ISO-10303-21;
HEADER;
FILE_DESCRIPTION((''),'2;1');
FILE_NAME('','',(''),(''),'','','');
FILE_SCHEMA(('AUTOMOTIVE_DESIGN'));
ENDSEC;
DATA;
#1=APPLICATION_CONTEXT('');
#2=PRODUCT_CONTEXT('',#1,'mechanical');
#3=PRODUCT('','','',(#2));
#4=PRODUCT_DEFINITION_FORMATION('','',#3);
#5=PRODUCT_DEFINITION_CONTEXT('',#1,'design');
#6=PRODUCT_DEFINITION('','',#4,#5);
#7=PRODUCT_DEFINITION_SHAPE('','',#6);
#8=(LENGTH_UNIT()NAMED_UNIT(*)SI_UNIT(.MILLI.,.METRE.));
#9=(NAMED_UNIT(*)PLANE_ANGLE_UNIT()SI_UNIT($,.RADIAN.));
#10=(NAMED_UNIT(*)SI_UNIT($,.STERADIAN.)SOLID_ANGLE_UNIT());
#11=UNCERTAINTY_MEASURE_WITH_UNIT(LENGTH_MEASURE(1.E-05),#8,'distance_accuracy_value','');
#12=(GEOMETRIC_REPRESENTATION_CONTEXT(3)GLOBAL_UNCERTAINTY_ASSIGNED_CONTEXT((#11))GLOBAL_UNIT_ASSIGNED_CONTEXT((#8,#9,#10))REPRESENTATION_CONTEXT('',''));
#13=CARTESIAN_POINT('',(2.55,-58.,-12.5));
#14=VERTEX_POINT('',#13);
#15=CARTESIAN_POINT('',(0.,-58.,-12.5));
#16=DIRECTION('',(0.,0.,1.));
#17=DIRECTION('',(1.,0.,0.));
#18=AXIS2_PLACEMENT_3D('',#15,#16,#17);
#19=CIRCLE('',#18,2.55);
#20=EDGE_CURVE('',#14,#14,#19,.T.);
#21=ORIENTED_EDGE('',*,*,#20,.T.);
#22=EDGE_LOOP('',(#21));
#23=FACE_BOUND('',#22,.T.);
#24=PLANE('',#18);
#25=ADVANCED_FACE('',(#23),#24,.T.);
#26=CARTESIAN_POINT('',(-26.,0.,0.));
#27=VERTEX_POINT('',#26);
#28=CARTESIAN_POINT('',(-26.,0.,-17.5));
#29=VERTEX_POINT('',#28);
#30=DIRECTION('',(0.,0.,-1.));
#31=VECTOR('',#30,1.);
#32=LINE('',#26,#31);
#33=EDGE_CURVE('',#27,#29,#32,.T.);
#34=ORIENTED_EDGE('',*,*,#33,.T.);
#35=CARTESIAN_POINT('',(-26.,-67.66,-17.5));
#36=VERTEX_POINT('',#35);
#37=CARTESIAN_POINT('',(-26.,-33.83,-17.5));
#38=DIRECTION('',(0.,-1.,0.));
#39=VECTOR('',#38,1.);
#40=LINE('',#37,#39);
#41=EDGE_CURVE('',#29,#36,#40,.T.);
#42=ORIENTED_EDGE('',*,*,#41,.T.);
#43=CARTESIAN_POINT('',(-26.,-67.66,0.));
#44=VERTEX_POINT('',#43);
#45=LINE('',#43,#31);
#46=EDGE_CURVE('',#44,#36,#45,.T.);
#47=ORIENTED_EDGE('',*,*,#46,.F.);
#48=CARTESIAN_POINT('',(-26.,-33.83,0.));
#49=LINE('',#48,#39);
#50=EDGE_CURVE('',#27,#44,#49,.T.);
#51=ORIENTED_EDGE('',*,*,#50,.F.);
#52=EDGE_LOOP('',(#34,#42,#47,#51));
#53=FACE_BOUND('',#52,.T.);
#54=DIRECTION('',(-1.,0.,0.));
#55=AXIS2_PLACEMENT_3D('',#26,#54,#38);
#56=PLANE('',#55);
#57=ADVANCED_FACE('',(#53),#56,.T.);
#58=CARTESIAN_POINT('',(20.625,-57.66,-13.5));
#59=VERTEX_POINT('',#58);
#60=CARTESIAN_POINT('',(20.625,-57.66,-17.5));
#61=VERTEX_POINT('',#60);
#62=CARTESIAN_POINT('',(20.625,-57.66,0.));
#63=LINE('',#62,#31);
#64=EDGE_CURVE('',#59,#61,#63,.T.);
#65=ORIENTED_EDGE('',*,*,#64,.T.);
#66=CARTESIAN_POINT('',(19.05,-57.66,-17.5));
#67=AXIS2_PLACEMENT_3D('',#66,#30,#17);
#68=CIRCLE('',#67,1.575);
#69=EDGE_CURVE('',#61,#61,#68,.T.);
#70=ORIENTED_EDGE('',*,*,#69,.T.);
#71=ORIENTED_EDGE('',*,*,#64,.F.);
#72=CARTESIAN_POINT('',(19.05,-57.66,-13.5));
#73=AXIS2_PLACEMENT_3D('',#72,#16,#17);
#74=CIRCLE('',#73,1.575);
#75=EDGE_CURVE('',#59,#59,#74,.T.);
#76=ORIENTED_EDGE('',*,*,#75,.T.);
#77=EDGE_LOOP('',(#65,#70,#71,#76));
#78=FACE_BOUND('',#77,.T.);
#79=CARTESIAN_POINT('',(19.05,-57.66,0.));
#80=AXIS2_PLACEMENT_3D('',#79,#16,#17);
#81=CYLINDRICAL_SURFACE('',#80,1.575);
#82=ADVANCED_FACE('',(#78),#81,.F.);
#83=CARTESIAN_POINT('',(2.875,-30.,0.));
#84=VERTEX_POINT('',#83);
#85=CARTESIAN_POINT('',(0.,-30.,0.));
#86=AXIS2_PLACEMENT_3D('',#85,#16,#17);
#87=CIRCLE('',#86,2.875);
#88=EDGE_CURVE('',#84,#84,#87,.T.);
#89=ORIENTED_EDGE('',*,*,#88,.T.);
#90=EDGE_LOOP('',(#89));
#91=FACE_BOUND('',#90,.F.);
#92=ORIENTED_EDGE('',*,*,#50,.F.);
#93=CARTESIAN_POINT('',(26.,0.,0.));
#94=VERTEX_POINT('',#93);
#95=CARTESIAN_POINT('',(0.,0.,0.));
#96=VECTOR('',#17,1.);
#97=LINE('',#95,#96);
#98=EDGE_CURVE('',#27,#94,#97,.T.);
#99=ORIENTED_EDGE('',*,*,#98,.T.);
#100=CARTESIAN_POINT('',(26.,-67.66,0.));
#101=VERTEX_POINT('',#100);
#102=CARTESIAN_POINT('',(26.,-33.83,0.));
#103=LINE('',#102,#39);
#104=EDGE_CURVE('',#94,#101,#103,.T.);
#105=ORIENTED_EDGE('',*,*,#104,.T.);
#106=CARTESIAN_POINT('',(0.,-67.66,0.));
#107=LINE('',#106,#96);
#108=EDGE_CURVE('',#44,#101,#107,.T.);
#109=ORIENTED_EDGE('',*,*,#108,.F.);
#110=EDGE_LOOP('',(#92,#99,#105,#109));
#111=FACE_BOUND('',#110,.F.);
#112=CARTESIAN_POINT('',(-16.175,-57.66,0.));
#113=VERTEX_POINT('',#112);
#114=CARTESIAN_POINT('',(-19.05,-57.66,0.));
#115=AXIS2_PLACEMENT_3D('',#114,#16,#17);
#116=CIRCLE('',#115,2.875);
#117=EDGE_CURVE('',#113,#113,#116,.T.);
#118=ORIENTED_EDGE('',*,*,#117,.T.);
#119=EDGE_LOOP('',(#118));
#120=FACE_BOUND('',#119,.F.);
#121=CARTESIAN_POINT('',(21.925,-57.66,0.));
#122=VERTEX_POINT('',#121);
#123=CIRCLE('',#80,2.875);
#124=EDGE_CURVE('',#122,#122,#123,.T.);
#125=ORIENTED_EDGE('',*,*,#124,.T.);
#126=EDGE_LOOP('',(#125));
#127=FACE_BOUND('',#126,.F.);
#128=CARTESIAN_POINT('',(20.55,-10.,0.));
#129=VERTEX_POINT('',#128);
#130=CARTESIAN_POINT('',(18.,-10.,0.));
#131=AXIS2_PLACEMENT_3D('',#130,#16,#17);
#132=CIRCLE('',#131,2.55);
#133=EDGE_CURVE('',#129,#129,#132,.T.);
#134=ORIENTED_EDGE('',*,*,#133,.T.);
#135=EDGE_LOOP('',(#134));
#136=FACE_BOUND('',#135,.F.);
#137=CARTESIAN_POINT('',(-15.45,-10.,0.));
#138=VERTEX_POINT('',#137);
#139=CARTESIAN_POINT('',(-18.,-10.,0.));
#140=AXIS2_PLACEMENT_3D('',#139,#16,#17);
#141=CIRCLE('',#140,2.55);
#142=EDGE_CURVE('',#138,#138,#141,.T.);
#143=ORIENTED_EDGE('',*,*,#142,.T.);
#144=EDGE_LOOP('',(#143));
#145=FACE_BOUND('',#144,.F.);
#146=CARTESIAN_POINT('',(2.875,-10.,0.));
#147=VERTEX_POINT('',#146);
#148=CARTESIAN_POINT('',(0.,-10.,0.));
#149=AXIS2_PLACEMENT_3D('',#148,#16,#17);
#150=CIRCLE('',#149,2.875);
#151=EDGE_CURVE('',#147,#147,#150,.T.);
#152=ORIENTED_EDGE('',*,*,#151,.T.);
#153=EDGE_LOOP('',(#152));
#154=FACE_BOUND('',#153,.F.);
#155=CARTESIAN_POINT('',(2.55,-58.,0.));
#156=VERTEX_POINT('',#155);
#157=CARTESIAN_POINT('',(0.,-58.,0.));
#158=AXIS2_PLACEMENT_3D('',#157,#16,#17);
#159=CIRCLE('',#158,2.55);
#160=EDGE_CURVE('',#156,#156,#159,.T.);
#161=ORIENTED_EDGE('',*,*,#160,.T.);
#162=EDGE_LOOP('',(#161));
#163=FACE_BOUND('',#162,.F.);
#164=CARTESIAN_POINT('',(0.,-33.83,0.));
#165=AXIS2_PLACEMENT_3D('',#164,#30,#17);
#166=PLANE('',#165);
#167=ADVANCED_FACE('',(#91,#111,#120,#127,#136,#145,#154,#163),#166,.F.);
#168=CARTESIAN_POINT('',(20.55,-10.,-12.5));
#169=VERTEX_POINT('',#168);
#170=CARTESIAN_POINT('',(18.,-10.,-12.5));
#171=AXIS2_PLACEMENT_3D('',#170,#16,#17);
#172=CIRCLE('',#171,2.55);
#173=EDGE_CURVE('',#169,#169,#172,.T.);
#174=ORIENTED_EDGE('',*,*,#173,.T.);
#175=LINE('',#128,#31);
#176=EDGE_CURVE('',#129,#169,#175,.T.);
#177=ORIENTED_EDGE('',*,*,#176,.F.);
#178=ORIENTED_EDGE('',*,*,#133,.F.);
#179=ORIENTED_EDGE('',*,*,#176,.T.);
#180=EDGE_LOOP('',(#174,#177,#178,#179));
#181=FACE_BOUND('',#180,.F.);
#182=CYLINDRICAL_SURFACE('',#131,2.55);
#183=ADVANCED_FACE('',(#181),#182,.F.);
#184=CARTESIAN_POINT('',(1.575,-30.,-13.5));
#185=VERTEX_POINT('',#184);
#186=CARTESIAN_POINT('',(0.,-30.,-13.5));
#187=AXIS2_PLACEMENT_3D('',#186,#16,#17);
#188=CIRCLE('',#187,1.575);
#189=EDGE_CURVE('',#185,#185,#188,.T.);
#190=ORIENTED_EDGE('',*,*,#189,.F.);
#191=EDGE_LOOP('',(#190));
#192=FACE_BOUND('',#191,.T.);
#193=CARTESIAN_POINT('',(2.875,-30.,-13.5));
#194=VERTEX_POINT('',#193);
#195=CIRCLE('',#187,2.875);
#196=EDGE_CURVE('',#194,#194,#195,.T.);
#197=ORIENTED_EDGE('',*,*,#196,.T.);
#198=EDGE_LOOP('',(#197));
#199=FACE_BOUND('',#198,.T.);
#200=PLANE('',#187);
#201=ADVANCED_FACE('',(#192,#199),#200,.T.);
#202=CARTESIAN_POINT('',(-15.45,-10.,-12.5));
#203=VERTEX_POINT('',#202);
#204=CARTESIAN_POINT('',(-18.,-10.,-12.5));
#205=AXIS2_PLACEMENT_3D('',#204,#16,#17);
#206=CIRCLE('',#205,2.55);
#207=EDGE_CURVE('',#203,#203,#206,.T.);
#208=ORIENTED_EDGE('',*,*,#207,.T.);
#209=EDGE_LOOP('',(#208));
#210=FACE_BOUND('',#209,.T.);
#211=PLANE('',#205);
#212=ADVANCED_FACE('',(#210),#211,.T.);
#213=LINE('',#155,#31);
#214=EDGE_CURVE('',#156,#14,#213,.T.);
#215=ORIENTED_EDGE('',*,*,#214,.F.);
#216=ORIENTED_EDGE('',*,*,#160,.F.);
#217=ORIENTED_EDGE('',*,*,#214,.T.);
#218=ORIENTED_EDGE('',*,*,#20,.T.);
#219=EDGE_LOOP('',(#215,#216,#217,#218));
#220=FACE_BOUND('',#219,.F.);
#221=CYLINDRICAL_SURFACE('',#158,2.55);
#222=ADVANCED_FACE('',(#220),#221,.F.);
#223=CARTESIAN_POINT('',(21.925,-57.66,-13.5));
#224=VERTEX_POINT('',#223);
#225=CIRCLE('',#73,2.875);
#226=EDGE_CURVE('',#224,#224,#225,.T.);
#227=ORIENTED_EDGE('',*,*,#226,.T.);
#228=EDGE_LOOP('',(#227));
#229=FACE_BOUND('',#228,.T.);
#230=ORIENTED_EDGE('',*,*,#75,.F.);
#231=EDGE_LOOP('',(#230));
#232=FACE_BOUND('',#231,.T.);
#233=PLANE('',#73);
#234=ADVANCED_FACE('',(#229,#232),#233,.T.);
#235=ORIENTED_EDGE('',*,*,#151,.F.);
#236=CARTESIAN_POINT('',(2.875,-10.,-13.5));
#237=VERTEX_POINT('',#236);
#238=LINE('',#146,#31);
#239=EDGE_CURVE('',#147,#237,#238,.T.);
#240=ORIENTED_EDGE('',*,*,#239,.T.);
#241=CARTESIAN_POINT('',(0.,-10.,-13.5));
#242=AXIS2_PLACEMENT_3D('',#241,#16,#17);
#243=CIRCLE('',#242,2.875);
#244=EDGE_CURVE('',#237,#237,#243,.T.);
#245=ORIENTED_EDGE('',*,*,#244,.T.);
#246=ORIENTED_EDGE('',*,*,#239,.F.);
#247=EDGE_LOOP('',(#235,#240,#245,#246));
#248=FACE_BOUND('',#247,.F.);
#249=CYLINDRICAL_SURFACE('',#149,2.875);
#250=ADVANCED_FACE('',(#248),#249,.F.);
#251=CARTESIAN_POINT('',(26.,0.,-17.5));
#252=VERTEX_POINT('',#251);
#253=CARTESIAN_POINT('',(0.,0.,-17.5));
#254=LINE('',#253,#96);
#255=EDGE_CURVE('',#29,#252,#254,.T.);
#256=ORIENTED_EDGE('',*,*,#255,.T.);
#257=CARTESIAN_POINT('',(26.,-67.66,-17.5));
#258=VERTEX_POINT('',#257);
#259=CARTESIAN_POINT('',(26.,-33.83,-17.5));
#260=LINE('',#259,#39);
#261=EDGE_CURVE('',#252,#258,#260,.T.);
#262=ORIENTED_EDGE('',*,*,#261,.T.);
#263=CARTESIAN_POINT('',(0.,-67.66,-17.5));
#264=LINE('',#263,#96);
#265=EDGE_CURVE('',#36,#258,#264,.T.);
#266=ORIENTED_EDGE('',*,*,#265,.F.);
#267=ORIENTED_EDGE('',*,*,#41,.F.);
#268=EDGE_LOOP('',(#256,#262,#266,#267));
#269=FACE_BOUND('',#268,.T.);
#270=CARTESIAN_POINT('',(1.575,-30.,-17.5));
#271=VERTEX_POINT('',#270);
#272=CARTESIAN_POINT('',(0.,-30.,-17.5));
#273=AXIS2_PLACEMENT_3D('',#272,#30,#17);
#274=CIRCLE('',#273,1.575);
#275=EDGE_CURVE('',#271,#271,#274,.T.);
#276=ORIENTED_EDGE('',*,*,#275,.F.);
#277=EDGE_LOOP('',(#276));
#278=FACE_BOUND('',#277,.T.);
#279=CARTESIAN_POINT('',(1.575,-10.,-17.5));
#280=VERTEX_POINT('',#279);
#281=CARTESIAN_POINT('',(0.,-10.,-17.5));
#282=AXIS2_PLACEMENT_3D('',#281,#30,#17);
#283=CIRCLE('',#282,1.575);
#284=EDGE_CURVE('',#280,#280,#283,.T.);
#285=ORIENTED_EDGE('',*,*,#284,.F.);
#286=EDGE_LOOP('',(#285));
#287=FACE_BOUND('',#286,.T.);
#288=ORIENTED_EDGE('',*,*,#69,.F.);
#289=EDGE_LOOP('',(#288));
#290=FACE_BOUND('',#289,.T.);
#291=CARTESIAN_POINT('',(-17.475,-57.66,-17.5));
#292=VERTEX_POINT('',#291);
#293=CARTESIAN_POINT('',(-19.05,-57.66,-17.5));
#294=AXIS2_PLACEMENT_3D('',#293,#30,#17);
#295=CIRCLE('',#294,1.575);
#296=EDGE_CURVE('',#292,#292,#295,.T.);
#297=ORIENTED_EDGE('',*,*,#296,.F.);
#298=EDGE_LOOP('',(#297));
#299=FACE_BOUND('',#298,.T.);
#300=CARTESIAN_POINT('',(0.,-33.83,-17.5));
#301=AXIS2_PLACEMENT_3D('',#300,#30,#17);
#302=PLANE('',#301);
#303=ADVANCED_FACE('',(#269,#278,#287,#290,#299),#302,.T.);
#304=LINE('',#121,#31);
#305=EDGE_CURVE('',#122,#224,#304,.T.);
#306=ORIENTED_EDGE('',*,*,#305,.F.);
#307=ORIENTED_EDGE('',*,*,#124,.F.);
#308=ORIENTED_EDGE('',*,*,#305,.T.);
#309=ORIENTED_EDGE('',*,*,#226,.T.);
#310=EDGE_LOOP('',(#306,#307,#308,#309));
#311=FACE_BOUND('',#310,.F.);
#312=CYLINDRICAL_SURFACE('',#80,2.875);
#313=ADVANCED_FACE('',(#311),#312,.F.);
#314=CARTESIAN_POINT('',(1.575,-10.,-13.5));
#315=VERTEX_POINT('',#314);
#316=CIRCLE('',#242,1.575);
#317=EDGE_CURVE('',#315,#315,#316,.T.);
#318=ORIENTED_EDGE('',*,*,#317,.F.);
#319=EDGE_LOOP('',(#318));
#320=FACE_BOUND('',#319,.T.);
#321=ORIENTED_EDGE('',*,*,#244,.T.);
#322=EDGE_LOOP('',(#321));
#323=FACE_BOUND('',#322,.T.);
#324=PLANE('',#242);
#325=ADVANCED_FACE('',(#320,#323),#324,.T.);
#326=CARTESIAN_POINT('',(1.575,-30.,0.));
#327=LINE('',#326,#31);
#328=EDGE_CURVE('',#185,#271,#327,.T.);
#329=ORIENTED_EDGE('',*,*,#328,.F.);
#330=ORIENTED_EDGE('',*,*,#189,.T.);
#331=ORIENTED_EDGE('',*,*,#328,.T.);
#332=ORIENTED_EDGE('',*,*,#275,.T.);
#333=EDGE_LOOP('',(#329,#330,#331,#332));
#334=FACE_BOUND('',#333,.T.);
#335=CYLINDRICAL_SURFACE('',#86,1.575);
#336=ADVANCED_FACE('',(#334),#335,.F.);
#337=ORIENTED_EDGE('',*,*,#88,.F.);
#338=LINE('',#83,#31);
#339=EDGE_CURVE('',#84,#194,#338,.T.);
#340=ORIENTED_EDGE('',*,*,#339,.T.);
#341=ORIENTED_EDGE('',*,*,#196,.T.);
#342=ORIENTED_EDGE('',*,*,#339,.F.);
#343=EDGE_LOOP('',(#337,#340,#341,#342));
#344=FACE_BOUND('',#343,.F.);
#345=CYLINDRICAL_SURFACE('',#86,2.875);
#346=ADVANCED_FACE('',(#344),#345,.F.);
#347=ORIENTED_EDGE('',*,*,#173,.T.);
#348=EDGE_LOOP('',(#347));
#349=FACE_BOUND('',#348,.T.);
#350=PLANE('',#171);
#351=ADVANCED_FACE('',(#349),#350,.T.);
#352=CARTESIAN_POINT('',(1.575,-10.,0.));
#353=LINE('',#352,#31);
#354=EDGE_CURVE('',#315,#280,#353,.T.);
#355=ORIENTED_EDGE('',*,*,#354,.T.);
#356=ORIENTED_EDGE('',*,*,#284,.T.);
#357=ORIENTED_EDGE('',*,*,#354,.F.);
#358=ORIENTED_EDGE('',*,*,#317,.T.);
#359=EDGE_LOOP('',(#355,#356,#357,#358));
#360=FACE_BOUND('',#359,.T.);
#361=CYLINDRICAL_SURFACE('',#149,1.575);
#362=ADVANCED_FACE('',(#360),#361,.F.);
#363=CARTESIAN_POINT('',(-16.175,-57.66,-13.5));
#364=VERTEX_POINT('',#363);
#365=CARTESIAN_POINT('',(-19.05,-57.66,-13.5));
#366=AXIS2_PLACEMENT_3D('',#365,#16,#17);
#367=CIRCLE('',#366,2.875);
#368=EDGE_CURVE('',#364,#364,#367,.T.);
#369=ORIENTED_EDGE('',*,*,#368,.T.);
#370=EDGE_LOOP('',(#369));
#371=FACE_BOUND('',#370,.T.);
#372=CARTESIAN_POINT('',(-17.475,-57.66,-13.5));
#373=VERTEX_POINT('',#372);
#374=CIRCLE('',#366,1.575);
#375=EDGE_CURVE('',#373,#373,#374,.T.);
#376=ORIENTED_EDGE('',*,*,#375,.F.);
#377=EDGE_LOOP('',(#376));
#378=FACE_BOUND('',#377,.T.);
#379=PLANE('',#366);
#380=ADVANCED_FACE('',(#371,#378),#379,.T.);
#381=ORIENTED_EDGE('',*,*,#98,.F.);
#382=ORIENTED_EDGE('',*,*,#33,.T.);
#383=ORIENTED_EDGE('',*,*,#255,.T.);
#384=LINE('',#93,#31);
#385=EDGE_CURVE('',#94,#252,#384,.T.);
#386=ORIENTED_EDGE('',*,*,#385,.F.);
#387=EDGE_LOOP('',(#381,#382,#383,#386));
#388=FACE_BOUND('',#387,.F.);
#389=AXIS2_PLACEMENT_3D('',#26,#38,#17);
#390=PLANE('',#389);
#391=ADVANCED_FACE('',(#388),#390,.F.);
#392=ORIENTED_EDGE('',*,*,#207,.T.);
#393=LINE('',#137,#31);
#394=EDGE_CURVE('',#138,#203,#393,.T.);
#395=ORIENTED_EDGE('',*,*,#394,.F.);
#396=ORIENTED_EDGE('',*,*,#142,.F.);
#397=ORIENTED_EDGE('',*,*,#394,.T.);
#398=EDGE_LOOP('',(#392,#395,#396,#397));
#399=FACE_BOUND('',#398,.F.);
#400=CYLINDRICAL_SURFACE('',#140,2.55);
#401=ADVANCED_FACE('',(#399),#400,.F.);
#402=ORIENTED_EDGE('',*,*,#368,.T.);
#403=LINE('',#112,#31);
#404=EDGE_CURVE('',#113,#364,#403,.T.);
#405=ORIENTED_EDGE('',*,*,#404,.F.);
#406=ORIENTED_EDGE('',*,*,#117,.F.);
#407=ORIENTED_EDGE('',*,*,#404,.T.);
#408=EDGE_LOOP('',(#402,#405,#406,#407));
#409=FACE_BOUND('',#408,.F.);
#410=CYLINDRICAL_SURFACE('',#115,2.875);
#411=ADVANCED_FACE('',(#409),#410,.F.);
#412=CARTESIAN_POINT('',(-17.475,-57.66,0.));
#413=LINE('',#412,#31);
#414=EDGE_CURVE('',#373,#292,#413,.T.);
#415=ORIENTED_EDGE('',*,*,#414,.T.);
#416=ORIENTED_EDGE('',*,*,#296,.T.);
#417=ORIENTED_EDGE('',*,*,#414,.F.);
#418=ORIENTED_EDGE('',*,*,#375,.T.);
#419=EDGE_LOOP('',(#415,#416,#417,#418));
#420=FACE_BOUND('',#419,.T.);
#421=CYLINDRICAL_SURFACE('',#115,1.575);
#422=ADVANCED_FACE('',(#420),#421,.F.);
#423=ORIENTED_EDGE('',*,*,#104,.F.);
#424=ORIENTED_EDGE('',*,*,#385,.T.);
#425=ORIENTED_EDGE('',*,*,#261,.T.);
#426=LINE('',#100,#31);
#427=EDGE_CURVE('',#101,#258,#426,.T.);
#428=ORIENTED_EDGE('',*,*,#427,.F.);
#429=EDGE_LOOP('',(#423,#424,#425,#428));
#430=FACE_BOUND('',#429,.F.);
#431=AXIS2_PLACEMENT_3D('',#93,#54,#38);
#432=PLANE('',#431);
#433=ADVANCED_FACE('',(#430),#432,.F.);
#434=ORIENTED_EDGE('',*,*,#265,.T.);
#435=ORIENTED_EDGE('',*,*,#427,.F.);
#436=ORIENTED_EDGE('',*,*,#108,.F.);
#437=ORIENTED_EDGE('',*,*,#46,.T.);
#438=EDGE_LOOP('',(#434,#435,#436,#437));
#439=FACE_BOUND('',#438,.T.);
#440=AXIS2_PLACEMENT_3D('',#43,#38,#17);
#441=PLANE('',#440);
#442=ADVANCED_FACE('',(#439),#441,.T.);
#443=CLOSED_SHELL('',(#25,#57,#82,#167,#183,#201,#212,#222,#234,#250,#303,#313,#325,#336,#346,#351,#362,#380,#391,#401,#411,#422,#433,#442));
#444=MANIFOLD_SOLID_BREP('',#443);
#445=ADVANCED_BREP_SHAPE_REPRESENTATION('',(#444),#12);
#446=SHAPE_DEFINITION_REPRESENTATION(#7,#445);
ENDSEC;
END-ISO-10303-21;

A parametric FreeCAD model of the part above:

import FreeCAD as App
import Part
import Sketcher

V = App.Vector
Q = App.Units.Quantity

doc = App.newDocument("Part")
body = doc.addObject("PartDesign::Body", "Body")

# Sketch on XY plane
sketch1 = body.newObject("Sketcher::SketchObject", "Sketch")
sketch1.AttachmentSupport = (doc.getObject("XY_Plane"), [""])
sketch1.MapMode = "FlatFace"
sketch1.addGeometry([
    Part.LineSegment(V(-26, 38, 0), V(-26, -30, 0)),
    Part.LineSegment(V(-26, -30, 0), V(26, -30, 0)),
    Part.LineSegment(V(26, -30, 0), V(26, 38, 0)),
    Part.LineSegment(V(26, 38, 0), V(-26, 38, 0)),
], False)
sketch1.addConstraint([
    Sketcher.Constraint("Coincident", 0, 2, 1, 1),
    Sketcher.Constraint("Coincident", 1, 2, 2, 1),
    Sketcher.Constraint("Coincident", 2, 2, 3, 1),
    Sketcher.Constraint("Coincident", 3, 2, 0, 1),
    Sketcher.Constraint("Vertical", 0),
    Sketcher.Constraint("Horizontal", 1),
    Sketcher.Constraint("Vertical", 2),
    Sketcher.Constraint("Horizontal", 3),
    Sketcher.Constraint("DistanceX", 1, 1, 1, 2, Q("52 mm")),
    Sketcher.Constraint("DistanceX", 0, 2, -1, 1, Q("26 mm")),
    Sketcher.Constraint("DistanceY", 0, 2, -1, 1, Q("30 mm")),
    Sketcher.Constraint("DistanceY", 0, 2, 0, 1, Q("67.66 mm")),
])
pad1 = body.newObject("PartDesign::Pad", "Pad")
pad1.Profile = sketch1
pad1.Length = 17.5

# Sketch on XY plane
sketch2 = body.newObject("Sketcher::SketchObject", "Sketch001")
sketch2.AttachmentSupport = (doc.getObject("XY_Plane"), [""])
sketch2.MapMode = "FlatFace"
sketch2.addGeometry([
    Part.Circle(V(0, 0, 0), V(0, 0, 1), 1.6),
    Part.Circle(V(0, -20, 0), V(0, 0, 1), 1.6),
    Part.Circle(V(-19.1, 27.7, 0), V(0, 0, 1), 1.6),
    Part.Circle(V(19.1, 27.7, 0), V(0, 0, 1), 1.6),
], False)
sketch2.addConstraint([
    Sketcher.Constraint("Coincident", 0, 3, -1, 1),
    Sketcher.Constraint("Equal", 0, 1),
    Sketcher.Constraint("Equal", 1, 2),
    Sketcher.Constraint("Equal", 2, 3),
    Sketcher.Constraint("Symmetric", 2, 3, 3, 3, -2),
    Sketcher.Constraint("PointOnObject", 1, 3, -2),
    Sketcher.Constraint("Diameter", 0, Q("3.15 mm")),
    Sketcher.Constraint("DistanceY", 1, 3, -1, 1, Q("20 mm")),
    Sketcher.Constraint("DistanceX", 2, 3, 3, 3, Q("38.1 mm")),
    Sketcher.Constraint("DistanceY", -1, 1, 2, 3, Q("27.66 mm")),
])
pocket1 = body.newObject("PartDesign::Pocket", "Pocket")
pocket1.Profile = sketch2
pocket1.Length = 17.5
pocket1.Reversed = True

# Sketch on XY plane
sketch3 = body.newObject("Sketcher::SketchObject", "Sketch002")
sketch3.AttachmentSupport = (doc.getObject("XY_Plane"), [""])
sketch3.MapMode = "FlatFace"
sketch3.addGeometry([
    Part.Circle(V(0, 0, 0), V(0, 0, 1), 2.9),
    Part.Circle(V(19.1, 27.7, 0), V(0, 0, 1), 2.9),
    Part.Circle(V(-19.1, 27.7, 0), V(0, 0, 1), 2.9),
    Part.Circle(V(0, -20, 0), V(0, 0, 1), 2.9),
], False)
sketch3.addConstraint([
    Sketcher.Constraint("Coincident", 0, 3, -1, 1),
    Sketcher.Constraint("Equal", 0, 1),
    Sketcher.Constraint("Equal", 1, 2),
    Sketcher.Constraint("Equal", 2, 3),
    Sketcher.Constraint("Symmetric", 1, 3, 2, 3, -2),
    Sketcher.Constraint("PointOnObject", 3, 3, -2),
    Sketcher.Constraint("Diameter", 0, Q("5.75 mm")),
    Sketcher.Constraint("DistanceY", 3, 3, -1, 1, Q("20 mm")),
    Sketcher.Constraint("DistanceX", 2, 3, 1, 3, Q("38.1 mm")),
    Sketcher.Constraint("DistanceY", -1, 1, 1, 3, Q("27.66 mm")),
])
pocket2 = body.newObject("PartDesign::Pocket", "Pocket001")
pocket2.Profile = sketch3
pocket2.Length = 13.5
pocket2.Reversed = True

# Sketch on XY plane
sketch4 = body.newObject("Sketcher::SketchObject", "Sketch003")
sketch4.AttachmentSupport = (doc.getObject("XY_Plane"), [""])
sketch4.MapMode = "FlatFace"
sketch4.addGeometry([
    Part.Circle(V(0, 28, 0), V(0, 0, 1), 2.5),
    Part.Circle(V(-18, -20, 0), V(0, 0, 1), 2.5),
    Part.Circle(V(18, -20, 0), V(0, 0, 1), 2.5),
], False)
sketch4.addConstraint([
    Sketcher.Constraint("Equal", 0, 1),
    Sketcher.Constraint("Equal", 1, 2),
    Sketcher.Constraint("Symmetric", 1, 3, 2, 3, -2),
    Sketcher.Constraint("PointOnObject", 0, 3, -2),
    Sketcher.Constraint("Diameter", 0, Q("5.1 mm")),
    Sketcher.Constraint("DistanceY", -1, 1, 0, 3, Q("28 mm")),
    Sketcher.Constraint("DistanceX", 1, 3, -1, 1, Q("18 mm")),
    Sketcher.Constraint("DistanceY", 1, 3, -1, 1, Q("20 mm")),
])
pocket3 = body.newObject("PartDesign::Pocket", "Pocket002")
pocket3.Profile = sketch4
pocket3.Length = 12.5
pocket3.Reversed = True
body2 = doc.addObject("PartDesign::Body", "Body001")
doc.recompute()

body.Placement = App.Placement(V(-52, 0, 35), App.Rotation(V(0, 1, 0), 180))
boolean = body2.newObject("PartDesign::Boolean", "Boolean")
boolean.Type = "Fuse"
boolean.addObjects([body])
body3 = doc.addObject("PartDesign::Body", "Body002")
doc.recompute()

body2.Placement = App.Placement(V(-52, 75.32, 0), App.Rotation(V(0, 0, 1), 180))
boolean2 = body3.newObject("PartDesign::Boolean", "Boolean001")
boolean2.Type = "Fuse"
boolean2.addObjects([body2])
body4 = doc.addObject("PartDesign::Body", "Body003")
doc.recompute()

body3.Placement = App.Placement(V(0, -105.32, -35), App.Rotation(V(0, 0, 1), 0))
boolean3 = body4.newObject("PartDesign::Boolean", "Boolean002")
boolean3.Type = "Fuse"
boolean3.addObjects([body3])

doc.recompute()
